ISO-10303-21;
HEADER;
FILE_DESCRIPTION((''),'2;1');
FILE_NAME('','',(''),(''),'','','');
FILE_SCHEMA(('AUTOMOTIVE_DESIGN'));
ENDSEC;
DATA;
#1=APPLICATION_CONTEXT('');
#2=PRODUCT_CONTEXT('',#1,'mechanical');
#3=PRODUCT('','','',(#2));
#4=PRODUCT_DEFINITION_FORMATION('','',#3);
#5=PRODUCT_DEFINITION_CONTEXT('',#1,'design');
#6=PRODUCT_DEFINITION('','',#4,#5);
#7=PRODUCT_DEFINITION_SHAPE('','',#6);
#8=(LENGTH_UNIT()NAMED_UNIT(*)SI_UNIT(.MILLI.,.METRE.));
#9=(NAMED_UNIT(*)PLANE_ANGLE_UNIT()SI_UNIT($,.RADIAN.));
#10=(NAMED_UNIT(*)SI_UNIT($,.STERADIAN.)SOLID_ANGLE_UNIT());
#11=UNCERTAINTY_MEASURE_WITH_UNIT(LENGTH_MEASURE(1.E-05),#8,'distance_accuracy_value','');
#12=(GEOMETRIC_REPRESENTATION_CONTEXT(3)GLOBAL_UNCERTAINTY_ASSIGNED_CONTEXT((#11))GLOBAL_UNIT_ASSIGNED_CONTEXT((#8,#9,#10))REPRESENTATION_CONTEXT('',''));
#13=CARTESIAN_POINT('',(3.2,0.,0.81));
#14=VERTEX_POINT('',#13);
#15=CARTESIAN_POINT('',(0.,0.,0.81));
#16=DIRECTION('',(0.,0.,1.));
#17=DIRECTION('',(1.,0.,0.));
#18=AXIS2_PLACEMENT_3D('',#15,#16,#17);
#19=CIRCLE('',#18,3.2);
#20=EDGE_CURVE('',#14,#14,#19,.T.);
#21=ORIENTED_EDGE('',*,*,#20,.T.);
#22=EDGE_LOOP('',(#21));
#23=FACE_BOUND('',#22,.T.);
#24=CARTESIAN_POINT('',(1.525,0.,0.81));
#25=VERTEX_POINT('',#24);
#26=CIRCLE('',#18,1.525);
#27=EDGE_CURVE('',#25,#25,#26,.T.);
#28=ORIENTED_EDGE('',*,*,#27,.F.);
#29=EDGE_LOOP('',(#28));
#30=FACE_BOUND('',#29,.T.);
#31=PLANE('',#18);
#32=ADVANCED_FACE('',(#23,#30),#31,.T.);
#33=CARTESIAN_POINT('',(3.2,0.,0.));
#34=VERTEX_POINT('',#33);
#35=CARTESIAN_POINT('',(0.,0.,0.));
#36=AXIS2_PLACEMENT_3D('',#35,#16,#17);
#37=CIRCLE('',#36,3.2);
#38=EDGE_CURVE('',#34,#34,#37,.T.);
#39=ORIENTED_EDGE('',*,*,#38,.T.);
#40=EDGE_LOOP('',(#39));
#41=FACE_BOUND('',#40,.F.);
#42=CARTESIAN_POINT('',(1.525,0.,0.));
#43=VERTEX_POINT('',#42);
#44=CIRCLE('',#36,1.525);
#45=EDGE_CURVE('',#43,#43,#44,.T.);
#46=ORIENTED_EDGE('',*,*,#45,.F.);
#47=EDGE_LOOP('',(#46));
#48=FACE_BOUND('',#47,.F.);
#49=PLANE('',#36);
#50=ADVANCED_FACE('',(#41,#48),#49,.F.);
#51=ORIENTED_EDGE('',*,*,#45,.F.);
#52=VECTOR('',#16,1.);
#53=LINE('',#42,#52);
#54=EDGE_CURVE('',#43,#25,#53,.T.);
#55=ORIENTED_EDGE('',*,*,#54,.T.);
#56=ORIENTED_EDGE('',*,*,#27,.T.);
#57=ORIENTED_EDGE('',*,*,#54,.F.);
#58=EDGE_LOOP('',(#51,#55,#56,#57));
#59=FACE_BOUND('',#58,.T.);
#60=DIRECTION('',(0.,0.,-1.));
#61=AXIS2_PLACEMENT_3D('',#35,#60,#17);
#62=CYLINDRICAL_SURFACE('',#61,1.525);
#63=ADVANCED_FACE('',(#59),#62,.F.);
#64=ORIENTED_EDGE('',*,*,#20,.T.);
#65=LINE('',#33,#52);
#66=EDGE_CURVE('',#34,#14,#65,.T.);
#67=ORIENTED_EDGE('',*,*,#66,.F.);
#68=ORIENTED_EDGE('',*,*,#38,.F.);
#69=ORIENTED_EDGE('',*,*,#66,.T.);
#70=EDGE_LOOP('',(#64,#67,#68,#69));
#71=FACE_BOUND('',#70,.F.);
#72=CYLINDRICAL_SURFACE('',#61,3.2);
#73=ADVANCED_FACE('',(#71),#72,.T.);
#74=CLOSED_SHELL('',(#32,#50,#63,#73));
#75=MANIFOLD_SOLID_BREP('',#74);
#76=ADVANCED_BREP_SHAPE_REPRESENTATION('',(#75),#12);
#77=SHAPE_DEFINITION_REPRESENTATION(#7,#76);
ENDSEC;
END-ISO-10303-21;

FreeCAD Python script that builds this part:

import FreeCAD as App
import Part
import Sketcher
Q = App.Units.Quantity

doc = App.newDocument("Part")
body = doc.addObject("PartDesign::Body", "Body")

# Sketch on XY plane
sketch1 = body.newObject("Sketcher::SketchObject", "Sketch")
sketch1.AttachmentSupport = (doc.getObject("XY_Plane"), [""])
sketch1.MapMode = "FlatFace"
sketch1.addGeometry([
    Part.Circle(App.Vector(0, 0, 0), App.Vector(0, 0, 1), 3.2),
    Part.Circle(App.Vector(0, 0, 0), App.Vector(0, 0, 1), 1.5),
], False)
sketch1.addConstraint([
    Sketcher.Constraint("Coincident", 0, 3, -1, 1),
    Sketcher.Constraint("Coincident", 1, 3, -1, 1),
    Sketcher.Constraint("Diameter", 0, Q("6.4 mm")),
    Sketcher.Constraint("Diameter", 1, Q("3.05 mm")),
])
pad1 = body.newObject("PartDesign::Pad", "Pad")
pad1.Profile = sketch1
pad1.Length = 0.81

doc.recompute()
